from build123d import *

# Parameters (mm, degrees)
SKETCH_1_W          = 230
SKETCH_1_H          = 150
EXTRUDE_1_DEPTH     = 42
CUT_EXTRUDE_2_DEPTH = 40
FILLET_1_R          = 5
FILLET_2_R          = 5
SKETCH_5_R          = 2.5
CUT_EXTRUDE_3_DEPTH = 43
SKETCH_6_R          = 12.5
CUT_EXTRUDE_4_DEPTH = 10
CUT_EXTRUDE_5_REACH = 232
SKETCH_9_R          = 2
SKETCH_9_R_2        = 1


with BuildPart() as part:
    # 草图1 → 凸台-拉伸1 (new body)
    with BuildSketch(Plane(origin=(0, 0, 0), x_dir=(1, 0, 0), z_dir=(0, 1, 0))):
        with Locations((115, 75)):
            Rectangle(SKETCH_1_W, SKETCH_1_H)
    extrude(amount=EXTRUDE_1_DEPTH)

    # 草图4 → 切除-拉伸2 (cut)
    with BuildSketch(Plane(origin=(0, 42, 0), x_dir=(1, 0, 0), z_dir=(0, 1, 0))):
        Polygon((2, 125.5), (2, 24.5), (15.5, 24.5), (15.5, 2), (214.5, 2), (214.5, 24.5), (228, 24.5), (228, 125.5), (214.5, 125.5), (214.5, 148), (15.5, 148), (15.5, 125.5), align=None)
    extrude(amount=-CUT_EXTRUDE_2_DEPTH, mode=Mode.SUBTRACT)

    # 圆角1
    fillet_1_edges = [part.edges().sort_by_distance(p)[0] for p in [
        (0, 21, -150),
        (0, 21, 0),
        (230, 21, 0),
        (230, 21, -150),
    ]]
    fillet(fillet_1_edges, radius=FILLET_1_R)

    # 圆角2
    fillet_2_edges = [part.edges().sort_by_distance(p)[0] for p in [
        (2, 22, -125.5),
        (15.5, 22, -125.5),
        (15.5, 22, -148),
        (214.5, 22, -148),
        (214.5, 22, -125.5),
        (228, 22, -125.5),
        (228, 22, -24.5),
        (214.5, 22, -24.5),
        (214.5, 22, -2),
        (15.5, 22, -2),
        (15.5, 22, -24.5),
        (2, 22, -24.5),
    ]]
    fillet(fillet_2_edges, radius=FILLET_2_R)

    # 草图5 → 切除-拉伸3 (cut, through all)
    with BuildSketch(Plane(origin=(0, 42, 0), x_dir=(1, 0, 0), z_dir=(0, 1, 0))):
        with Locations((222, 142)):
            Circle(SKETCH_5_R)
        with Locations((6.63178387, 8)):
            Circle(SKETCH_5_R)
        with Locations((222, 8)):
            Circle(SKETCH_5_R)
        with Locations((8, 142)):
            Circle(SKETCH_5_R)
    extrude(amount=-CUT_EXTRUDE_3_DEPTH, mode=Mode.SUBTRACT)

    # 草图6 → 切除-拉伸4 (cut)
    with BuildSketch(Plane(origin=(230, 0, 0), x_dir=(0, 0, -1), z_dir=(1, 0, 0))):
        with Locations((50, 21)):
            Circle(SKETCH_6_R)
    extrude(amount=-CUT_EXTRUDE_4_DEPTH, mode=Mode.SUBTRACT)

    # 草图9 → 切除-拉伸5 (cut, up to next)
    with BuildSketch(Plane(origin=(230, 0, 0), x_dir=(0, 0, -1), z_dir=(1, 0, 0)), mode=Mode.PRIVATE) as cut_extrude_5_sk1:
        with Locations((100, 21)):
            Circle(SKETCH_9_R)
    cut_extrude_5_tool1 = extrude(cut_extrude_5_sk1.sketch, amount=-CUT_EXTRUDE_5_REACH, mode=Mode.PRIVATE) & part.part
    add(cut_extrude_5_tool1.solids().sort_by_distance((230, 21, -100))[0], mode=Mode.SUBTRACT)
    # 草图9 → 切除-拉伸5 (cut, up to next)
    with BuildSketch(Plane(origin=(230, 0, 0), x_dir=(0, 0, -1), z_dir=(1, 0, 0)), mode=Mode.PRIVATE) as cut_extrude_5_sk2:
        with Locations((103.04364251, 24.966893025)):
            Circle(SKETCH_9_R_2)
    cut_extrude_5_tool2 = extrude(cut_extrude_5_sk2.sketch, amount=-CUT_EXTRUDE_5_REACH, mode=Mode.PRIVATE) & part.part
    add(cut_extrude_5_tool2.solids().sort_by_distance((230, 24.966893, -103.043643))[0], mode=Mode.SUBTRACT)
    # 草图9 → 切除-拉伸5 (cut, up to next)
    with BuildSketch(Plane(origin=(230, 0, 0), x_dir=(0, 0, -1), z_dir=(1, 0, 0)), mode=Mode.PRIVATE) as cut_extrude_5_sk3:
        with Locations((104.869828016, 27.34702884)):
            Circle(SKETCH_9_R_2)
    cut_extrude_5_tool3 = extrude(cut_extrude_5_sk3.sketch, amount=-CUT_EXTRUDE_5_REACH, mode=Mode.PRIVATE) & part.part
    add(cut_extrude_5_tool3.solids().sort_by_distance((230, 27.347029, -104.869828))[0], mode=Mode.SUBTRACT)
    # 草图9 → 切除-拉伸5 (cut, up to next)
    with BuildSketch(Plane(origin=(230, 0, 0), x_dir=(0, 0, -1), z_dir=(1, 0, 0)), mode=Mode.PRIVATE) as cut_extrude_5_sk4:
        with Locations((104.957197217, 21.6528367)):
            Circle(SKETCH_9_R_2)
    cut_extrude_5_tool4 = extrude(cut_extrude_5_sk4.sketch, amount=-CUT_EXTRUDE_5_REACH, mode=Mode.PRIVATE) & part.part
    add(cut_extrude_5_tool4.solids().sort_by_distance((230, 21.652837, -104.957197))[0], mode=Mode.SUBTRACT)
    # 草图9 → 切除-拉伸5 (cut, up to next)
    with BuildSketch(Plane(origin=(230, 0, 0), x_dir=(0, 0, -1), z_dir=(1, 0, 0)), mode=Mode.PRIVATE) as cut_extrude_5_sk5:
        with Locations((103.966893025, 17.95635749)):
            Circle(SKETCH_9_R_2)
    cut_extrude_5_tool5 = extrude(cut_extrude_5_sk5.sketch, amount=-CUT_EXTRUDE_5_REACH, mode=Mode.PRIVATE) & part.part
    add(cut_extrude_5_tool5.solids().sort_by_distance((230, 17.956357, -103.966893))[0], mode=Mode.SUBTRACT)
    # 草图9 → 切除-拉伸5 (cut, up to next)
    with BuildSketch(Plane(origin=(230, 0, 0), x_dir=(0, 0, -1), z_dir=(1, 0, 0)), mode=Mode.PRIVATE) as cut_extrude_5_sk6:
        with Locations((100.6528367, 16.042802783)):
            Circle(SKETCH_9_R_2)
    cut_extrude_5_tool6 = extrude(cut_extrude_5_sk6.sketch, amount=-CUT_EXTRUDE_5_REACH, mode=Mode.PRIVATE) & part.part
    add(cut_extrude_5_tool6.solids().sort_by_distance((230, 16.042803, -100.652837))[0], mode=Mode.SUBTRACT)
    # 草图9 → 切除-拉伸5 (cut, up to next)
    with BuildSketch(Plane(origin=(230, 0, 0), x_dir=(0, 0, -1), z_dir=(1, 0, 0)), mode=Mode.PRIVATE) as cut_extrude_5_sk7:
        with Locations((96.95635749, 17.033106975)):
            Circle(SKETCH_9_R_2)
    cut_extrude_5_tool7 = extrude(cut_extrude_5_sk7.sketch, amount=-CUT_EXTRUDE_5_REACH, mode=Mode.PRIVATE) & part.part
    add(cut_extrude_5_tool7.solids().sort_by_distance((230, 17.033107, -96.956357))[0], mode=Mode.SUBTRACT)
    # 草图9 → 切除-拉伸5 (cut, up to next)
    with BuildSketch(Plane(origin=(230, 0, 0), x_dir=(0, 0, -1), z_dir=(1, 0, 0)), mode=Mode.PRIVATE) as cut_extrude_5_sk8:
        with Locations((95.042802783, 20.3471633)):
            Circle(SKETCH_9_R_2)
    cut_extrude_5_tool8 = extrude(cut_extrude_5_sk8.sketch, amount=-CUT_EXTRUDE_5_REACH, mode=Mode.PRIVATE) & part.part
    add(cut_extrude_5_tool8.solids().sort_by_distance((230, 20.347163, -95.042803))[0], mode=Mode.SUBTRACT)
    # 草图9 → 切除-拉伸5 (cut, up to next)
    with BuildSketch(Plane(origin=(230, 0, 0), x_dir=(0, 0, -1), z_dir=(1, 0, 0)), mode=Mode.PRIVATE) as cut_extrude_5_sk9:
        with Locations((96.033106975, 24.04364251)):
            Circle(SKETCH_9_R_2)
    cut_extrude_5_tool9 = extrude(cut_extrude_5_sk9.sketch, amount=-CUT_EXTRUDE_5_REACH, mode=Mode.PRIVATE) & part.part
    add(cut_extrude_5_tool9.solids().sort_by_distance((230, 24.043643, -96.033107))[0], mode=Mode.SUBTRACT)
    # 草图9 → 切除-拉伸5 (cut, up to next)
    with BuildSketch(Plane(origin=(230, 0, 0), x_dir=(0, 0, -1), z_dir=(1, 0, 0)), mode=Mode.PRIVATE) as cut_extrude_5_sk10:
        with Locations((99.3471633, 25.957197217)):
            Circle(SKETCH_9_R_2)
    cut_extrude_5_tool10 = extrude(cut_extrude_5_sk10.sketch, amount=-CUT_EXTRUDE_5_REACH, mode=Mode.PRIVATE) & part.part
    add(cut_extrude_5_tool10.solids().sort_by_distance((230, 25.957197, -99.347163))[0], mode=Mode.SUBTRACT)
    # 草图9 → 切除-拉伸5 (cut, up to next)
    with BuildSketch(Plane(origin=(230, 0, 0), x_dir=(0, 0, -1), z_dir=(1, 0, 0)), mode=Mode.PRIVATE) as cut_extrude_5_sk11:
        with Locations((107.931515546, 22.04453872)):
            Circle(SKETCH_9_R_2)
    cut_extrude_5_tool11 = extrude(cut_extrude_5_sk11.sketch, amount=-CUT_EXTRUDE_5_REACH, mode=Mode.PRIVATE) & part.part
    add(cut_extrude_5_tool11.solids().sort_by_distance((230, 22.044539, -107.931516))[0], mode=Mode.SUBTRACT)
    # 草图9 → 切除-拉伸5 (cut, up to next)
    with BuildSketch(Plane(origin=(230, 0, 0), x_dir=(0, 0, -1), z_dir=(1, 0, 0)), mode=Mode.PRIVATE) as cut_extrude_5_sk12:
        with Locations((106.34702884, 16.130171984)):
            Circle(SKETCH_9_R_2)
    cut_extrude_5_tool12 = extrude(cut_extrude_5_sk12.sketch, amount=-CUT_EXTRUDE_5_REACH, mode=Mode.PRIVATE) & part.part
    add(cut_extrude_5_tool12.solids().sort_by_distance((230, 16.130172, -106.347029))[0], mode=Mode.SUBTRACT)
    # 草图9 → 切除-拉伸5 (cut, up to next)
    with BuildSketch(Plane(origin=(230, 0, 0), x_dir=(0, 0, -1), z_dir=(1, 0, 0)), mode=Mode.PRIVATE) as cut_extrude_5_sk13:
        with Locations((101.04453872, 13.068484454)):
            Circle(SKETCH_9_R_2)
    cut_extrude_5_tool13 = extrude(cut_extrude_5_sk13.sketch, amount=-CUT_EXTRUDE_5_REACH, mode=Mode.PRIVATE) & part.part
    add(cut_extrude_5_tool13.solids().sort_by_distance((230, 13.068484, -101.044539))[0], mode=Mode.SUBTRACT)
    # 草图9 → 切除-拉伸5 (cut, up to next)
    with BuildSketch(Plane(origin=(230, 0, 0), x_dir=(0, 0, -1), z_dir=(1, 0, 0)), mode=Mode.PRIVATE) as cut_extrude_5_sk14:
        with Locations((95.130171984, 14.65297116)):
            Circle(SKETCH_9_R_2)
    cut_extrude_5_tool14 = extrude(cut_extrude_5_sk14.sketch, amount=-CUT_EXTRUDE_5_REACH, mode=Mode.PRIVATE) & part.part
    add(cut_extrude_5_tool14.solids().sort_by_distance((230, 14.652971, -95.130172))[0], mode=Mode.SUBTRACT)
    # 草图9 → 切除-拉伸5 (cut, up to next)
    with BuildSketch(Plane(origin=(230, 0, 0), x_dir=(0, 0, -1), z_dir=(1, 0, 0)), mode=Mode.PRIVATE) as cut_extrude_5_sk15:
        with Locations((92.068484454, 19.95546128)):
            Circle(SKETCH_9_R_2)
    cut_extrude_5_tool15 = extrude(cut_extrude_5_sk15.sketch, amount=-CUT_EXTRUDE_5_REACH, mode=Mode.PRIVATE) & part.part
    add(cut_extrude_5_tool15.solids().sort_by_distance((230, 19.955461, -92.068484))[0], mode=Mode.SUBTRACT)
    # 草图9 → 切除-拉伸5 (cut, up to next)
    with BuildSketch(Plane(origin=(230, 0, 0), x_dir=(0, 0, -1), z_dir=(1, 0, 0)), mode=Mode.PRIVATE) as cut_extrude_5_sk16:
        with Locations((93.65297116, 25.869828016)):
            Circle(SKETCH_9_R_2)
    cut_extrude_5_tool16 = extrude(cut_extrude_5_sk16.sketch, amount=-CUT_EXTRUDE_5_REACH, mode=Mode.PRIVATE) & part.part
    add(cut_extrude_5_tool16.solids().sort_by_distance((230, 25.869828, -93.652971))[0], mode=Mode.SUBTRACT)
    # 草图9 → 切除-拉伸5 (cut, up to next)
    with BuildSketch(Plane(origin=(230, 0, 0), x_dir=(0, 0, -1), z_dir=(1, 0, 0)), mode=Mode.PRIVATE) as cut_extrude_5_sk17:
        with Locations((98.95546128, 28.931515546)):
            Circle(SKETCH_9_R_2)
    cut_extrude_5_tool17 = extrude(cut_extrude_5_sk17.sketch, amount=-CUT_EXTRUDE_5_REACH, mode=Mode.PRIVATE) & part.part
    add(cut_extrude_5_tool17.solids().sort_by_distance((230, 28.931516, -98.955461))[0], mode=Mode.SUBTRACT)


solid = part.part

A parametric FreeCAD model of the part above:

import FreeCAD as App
import Part
import Sketcher


def edges_at(feature, points):
    """Names of the edges that pass closest to the given points."""
    edges = feature.Shape.Edges
    near = lambda p: min(range(len(edges)), key=lambda i: edges[i].distToShape(Part.Vertex(*p))[0])
    return sorted({f"Edge{near(p) + 1}" for p in points})

doc = App.newDocument("Part")
body = doc.addObject("PartDesign::Body", "Body")

# Sketch on XZ plane
sketch1 = body.newObject("Sketcher::SketchObject", "Sketch")
sketch1.AttachmentSupport = (doc.getObject("XZ_Plane"), [""])
sketch1.MapMode = "FlatFace"
sketch1.addGeometry(Part.LineSegment(App.Vector(0, -150, 0), App.Vector(0, 0, 0)), False)
sketch1.addGeometry(Part.LineSegment(App.Vector(0, 0, 0), App.Vector(230, 0, 0)), False)
sketch1.addGeometry(Part.LineSegment(App.Vector(230, 0, 0), App.Vector(230, -150, 0)), False)
sketch1.addGeometry(Part.LineSegment(App.Vector(230, -150, 0), App.Vector(0, -150, 0)), False)
sketch1.addConstraint(Sketcher.Constraint("Coincident", 0, 2, 1, 1))
sketch1.addConstraint(Sketcher.Constraint("Coincident", 1, 2, 2, 1))
sketch1.addConstraint(Sketcher.Constraint("Coincident", 2, 2, 3, 1))
sketch1.addConstraint(Sketcher.Constraint("Coincident", 3, 2, 0, 1))
sketch1.addConstraint(Sketcher.Constraint("Vertical", 0))
sketch1.addConstraint(Sketcher.Constraint("Horizontal", 1))
sketch1.addConstraint(Sketcher.Constraint("Vertical", 2))
sketch1.addConstraint(Sketcher.Constraint("Horizontal", 3))
sketch1.addConstraint(Sketcher.Constraint("Coincident", 0, 2, -1, 1))
sketch1.addConstraint(Sketcher.Constraint("DistanceX", 1, 1, 1, 2, 230.0))
sketch1.addConstraint(Sketcher.Constraint("DistanceY", 0, 1, 0, 2, 150.0))
pad1 = body.newObject("PartDesign::Pad", "Pad")
pad1.Profile = sketch1
pad1.Length = 42
pad1.Reversed = True

# Sketch on XZ plane
sketch2 = body.newObject("Sketcher::SketchObject", "Sketch001")
sketch2.AttachmentSupport = (doc.getObject("XZ_Plane"), [""])
sketch2.MapMode = "FlatFace"
sketch2.AttachmentOffset = App.Placement(App.Vector(0, 0, -42), App.Rotation())
sketch2.addGeometry(Part.LineSegment(App.Vector(2, -126, 0), App.Vector(2, -24, 0)), False)
sketch2.addGeometry(Part.LineSegment(App.Vector(2, -24, 0), App.Vector(16, -24, 0)), False)
sketch2.addGeometry(Part.LineSegment(App.Vector(16, -24, 0), App.Vector(16, -2, 0)), False)
sketch2.addGeometry(Part.LineSegment(App.Vector(16, -2, 0), App.Vector(214, -2, 0)), False)
sketch2.addGeometry(Part.LineSegment(App.Vector(214, -2, 0), App.Vector(214, -24, 0)), False)
sketch2.addGeometry(Part.LineSegment(App.Vector(214, -24, 0), App.Vector(228, -24, 0)), False)
sketch2.addGeometry(Part.LineSegment(App.Vector(228, -24, 0), App.Vector(228, -126, 0)), False)
sketch2.addGeometry(Part.LineSegment(App.Vector(228, -126, 0), App.Vector(214, -126, 0)), False)
sketch2.addGeometry(Part.LineSegment(App.Vector(214, -126, 0), App.Vector(214, -148, 0)), False)
sketch2.addGeometry(Part.LineSegment(App.Vector(214, -148, 0), App.Vector(16, -148, 0)), False)
sketch2.addGeometry(Part.LineSegment(App.Vector(16, -148, 0), App.Vector(16, -126, 0)), False)
sketch2.addGeometry(Part.LineSegment(App.Vector(16, -126, 0), App.Vector(2, -126, 0)), False)
sketch2.addConstraint(Sketcher.Constraint("Coincident", 0, 2, 1, 1))
sketch2.addConstraint(Sketcher.Constraint("Coincident", 1, 2, 2, 1))
sketch2.addConstraint(Sketcher.Constraint("Coincident", 2, 2, 3, 1))
sketch2.addConstraint(Sketcher.Constraint("Coincident", 3, 2, 4, 1))
sketch2.addConstraint(Sketcher.Constraint("Coincident", 4, 2, 5, 1))
sketch2.addConstraint(Sketcher.Constraint("Coincident", 5, 2, 6, 1))
sketch2.addConstraint(Sketcher.Constraint("Coincident", 6, 2, 7, 1))
sketch2.addConstraint(Sketcher.Constraint("Coincident", 7, 2, 8, 1))
sketch2.addConstraint(Sketcher.Constraint("Coincident", 8, 2, 9, 1))
sketch2.addConstraint(Sketcher.Constraint("Coincident", 9, 2, 10, 1))
sketch2.addConstraint(Sketcher.Constraint("Coincident", 10, 2, 11, 1))
sketch2.addConstraint(Sketcher.Constraint("Coincident", 11, 2, 0, 1))
sketch2.addConstraint(Sketcher.Constraint("Vertical", 0))
sketch2.addConstraint(Sketcher.Constraint("Horizontal", 1))
sketch2.addConstraint(Sketcher.Constraint("Vertical", 2))
sketch2.addConstraint(Sketcher.Constraint("Horizontal", 3))
sketch2.addConstraint(Sketcher.Constraint("Vertical", 4))
sketch2.addConstraint(Sketcher.Constraint("Horizontal", 5))
sketch2.addConstraint(Sketcher.Constraint("Vertical", 6))
sketch2.addConstraint(Sketcher.Constraint("Horizontal", 7))
sketch2.addConstraint(Sketcher.Constraint("Vertical", 8))
sketch2.addConstraint(Sketcher.Constraint("Horizontal", 9))
sketch2.addConstraint(Sketcher.Constraint("Vertical", 10))
sketch2.addConstraint(Sketcher.Constraint("Horizontal", 11))
sketch2.addConstraint(Sketcher.Constraint("Horizontal", 1, 2, 4, 2))
sketch2.addConstraint(Sketcher.Constraint("Horizontal", 7, 2, 10, 2))
sketch2.addConstraint(Sketcher.Constraint("Vertical", 4, 2, 7, 2))
sketch2.addConstraint(Sketcher.Constraint("Vertical", 2, 2, 9, 2))
sketch2.addConstraint(Sketcher.Constraint("Equal", 1, 5))
sketch2.addConstraint(Sketcher.Constraint("Equal", 4, 8))
sketch2.addConstraint(Sketcher.Constraint("DistanceX", 3, 1, 3, 2, 199.0))
sketch2.addConstraint(Sketcher.Constraint("DistanceY", 0, 1, 0, 2, 101.0))
sketch2.addConstraint(Sketcher.Constraint("DistanceX", 1, 1, 1, 2, 13.5))
sketch2.addConstraint(Sketcher.Constraint("DistanceY", 2, 1, 2, 2, 22.5))
sketch2.addConstraint(Sketcher.Constraint("DistanceX", -1, 1, 0, 2, 2.0))
sketch2.addConstraint(Sketcher.Constraint("DistanceY", 2, 2, -1, 1, 2.0))
pocket1 = body.newObject("PartDesign::Pocket", "Pocket")
pocket1.Profile = sketch2
pocket1.Length = 40
pocket1.Reversed = True
doc.recompute()

fillet = body.newObject("PartDesign::Fillet", "Fillet")
fillet.Base = (pocket1, edges_at(pocket1, [
    (0, 21, -150),
    (0, 21, 0),
    (230, 21, 0),
    (230, 21, -150),
]))
fillet.Radius = 5
doc.recompute()

fillet2 = body.newObject("PartDesign::Fillet", "Fillet001")
fillet2.Base = (fillet, edges_at(fillet, [
    (2, 22, -125.5),
    (15.5, 22, -125.5),
    (15.5, 22, -148),
    (214.5, 22, -148),
    (214.5, 22, -125.5),
    (228, 22, -125.5),
    (228, 22, -24.5),
    (214.5, 22, -24.5),
    (214.5, 22, -2),
    (15.5, 22, -2),
    (15.5, 22, -24.5),
    (2, 22, -24.5),
]))
fillet2.Radius = 5

# Sketch on XZ plane
sketch3 = body.newObject("Sketcher::SketchObject", "Sketch002")
sketch3.AttachmentSupport = (doc.getObject("XZ_Plane"), [""])
sketch3.MapMode = "FlatFace"
sketch3.AttachmentOffset = App.Placement(App.Vector(0, 0, -42), App.Rotation())
sketch3.addGeometry(Part.Circle(App.Vector(222, -142, 0), App.Vector(0, 0, 1), 2.5), False)
sketch3.addGeometry(Part.Circle(App.Vector(6.6, -8, 0), App.Vector(0, 0, 1), 2.5), False)
sketch3.addGeometry(Part.Circle(App.Vector(222, -8, 0), App.Vector(0, 0, 1), 2.5), False)
sketch3.addGeometry(Part.Circle(App.Vector(8, -142, 0), App.Vector(0, 0, 1), 2.5), False)
sketch3.addConstraint(Sketcher.Constraint("Equal", 0, 1))
sketch3.addConstraint(Sketcher.Constraint("Equal", 1, 2))
sketch3.addConstraint(Sketcher.Constraint("Equal", 2, 3))
sketch3.addConstraint(Sketcher.Constraint("Horizontal", 1, 3, 2, 3))
sketch3.addConstraint(Sketcher.Constraint("Horizontal", 0, 3, 3, 3))
sketch3.addConstraint(Sketcher.Constraint("Vertical", 0, 3, 2, 3))
sketch3.addConstraint(Sketcher.Constraint("Diameter", 0, 5.0))
sketch3.addConstraint(Sketcher.Constraint("DistanceX", -1, 1, 0, 3, 222.0))
sketch3.addConstraint(Sketcher.Constraint("DistanceY", 0, 3, -1, 1, 142.0))
sketch3.addConstraint(Sketcher.Constraint("DistanceY", 1, 3, -1, 1, 8.0))
sketch3.addConstraint(Sketcher.Constraint("DistanceX", -1, 1, 3, 3, 8.0))
sketch3.addConstraint(Sketcher.Constraint("DistanceX", -1, 1, 1, 3, 6.631784))
pocket2 = body.newObject("PartDesign::Pocket", "Pocket001")
pocket2.Profile = sketch3
pocket2.Type = "ThroughAll"
pocket2.Reversed = True

# Sketch on YZ plane
sketch4 = body.newObject("Sketcher::SketchObject", "Sketch003")
sketch4.AttachmentSupport = (doc.getObject("YZ_Plane"), [""])
sketch4.MapMode = "FlatFace"
sketch4.AttachmentOffset = App.Placement(App.Vector(0, 0, 230), App.Rotation())
sketch4.addGeometry(Part.Circle(App.Vector(21, -50, 0), App.Vector(0, 0, 1), 12), False)
sketch4.addConstraint(Sketcher.Constraint("Diameter", 0, 25.0))
sketch4.addConstraint(Sketcher.Constraint("DistanceX", -1, 1, 0, 3, 21.0))
sketch4.addConstraint(Sketcher.Constraint("DistanceY", 0, 3, -1, 1, 50.0))
pocket3 = body.newObject("PartDesign::Pocket", "Pocket002")
pocket3.Profile = sketch4
pocket3.Length = 10

# Sketch on YZ plane
sketch5 = body.newObject("Sketcher::SketchObject", "Sketch004")
sketch5.AttachmentSupport = (doc.getObject("YZ_Plane"), [""])
sketch5.MapMode = "FlatFace"
sketch5.AttachmentOffset = App.Placement(App.Vector(0, 0, 230), App.Rotation())
sketch5.addGeometry(Part.Circle(App.Vector(21, -100, 0), App.Vector(0, 0, 1), 2), False)
sketch5.addConstraint(Sketcher.Constraint("Diameter", 0, 4.0))
sketch5.addConstraint(Sketcher.Constraint("DistanceX", -1, 1, 0, 3, 21.0))
sketch5.addConstraint(Sketcher.Constraint("DistanceY", 0, 3, -1, 1, 100.0))
pocket4 = body.newObject("PartDesign::Pocket", "Pocket003")
pocket4.Profile = sketch5
pocket4.Type = "UpToFirst"

# Sketch on YZ plane
sketch6 = body.newObject("Sketcher::SketchObject", "Sketch005")
sketch6.AttachmentSupport = (doc.getObject("YZ_Plane"), [""])
sketch6.MapMode = "FlatFace"
sketch6.AttachmentOffset = App.Placement(App.Vector(0, 0, 230), App.Rotation())
sketch6.addGeometry(Part.Circle(App.Vector(25, -103, 0), App.Vector(0, 0, 1), 1), False)
sketch6.addConstraint(Sketcher.Constraint("Diameter", 0, 2.0))
sketch6.addConstraint(Sketcher.Constraint("DistanceX", -1, 1, 0, 3, 24.966893))
sketch6.addConstraint(Sketcher.Constraint("DistanceY", 0, 3, -1, 1, 103.043643))
pocket5 = body.newObject("PartDesign::Pocket", "Pocket004")
pocket5.Profile = sketch6
pocket5.Type = "UpToFirst"

# Sketch on YZ plane
sketch7 = body.newObject("Sketcher::SketchObject", "Sketch006")
sketch7.AttachmentSupport = (doc.getObject("YZ_Plane"), [""])
sketch7.MapMode = "FlatFace"
sketch7.AttachmentOffset = App.Placement(App.Vector(0, 0, 230), App.Rotation())
sketch7.addGeometry(Part.Circle(App.Vector(27.3, -104.9, 0), App.Vector(0, 0, 1), 1), False)
sketch7.addConstraint(Sketcher.Constraint("Diameter", 0, 2.0))
sketch7.addConstraint(Sketcher.Constraint("DistanceX", -1, 1, 0, 3, 27.347029))
sketch7.addConstraint(Sketcher.Constraint("DistanceY", 0, 3, -1, 1, 104.869828))
pocket6 = body.newObject("PartDesign::Pocket", "Pocket005")
pocket6.Profile = sketch7
pocket6.Type = "UpToFirst"

# Sketch on YZ plane
sketch8 = body.newObject("Sketcher::SketchObject", "Sketch007")
sketch8.AttachmentSupport = (doc.getObject("YZ_Plane"), [""])
sketch8.MapMode = "FlatFace"
sketch8.AttachmentOffset = App.Placement(App.Vector(0, 0, 230), App.Rotation())
sketch8.addGeometry(Part.Circle(App.Vector(21.7, -105, 0), App.Vector(0, 0, 1), 1), False)
sketch8.addConstraint(Sketcher.Constraint("Diameter", 0, 2.0))
sketch8.addConstraint(Sketcher.Constraint("DistanceX", -1, 1, 0, 3, 21.652837))
sketch8.addConstraint(Sketcher.Constraint("DistanceY", 0, 3, -1, 1, 104.957197))
pocket7 = body.newObject("PartDesign::Pocket", "Pocket006")
pocket7.Profile = sketch8
pocket7.Type = "UpToFirst"

# Sketch on YZ plane
sketch9 = body.newObject("Sketcher::SketchObject", "Sketch008")
sketch9.AttachmentSupport = (doc.getObject("YZ_Plane"), [""])
sketch9.MapMode = "FlatFace"
sketch9.AttachmentOffset = App.Placement(App.Vector(0, 0, 230), App.Rotation())
sketch9.addGeometry(Part.Circle(App.Vector(18, -104, 0), App.Vector(0, 0, 1), 1), False)
sketch9.addConstraint(Sketcher.Constraint("Diameter", 0, 2.0))
sketch9.addConstraint(Sketcher.Constraint("DistanceX", -1, 1, 0, 3, 17.956357))
sketch9.addConstraint(Sketcher.Constraint("DistanceY", 0, 3, -1, 1, 103.966893))
pocket8 = body.newObject("PartDesign::Pocket", "Pocket007")
pocket8.Profile = sketch9
pocket8.Type = "UpToFirst"

# Sketch on YZ plane
sketch10 = body.newObject("Sketcher::SketchObject", "Sketch009")
sketch10.AttachmentSupport = (doc.getObject("YZ_Plane"), [""])
sketch10.MapMode = "FlatFace"
sketch10.AttachmentOffset = App.Placement(App.Vector(0, 0, 230), App.Rotation())
sketch10.addGeometry(Part.Circle(App.Vector(16, -100.7, 0), App.Vector(0, 0, 1), 1), False)
sketch10.addConstraint(Sketcher.Constraint("Diameter", 0, 2.0))
sketch10.addConstraint(Sketcher.Constraint("DistanceX", -1, 1, 0, 3, 16.042803))
sketch10.addConstraint(Sketcher.Constraint("DistanceY", 0, 3, -1, 1, 100.652837))
pocket9 = body.newObject("PartDesign::Pocket", "Pocket008")
pocket9.Profile = sketch10
pocket9.Type = "UpToFirst"

# Sketch on YZ plane
sketch11 = body.newObject("Sketcher::SketchObject", "Sketch010")
sketch11.AttachmentSupport = (doc.getObject("YZ_Plane"), [""])
sketch11.MapMode = "FlatFace"
sketch11.AttachmentOffset = App.Placement(App.Vector(0, 0, 230), App.Rotation())
sketch11.addGeometry(Part.Circle(App.Vector(17, -97, 0), App.Vector(0, 0, 1), 1), False)
sketch11.addConstraint(Sketcher.Constraint("Diameter", 0, 2.0))
sketch11.addConstraint(Sketcher.Constraint("DistanceX", -1, 1, 0, 3, 17.033107))
sketch11.addConstraint(Sketcher.Constraint("DistanceY", 0, 3, -1, 1, 96.956357))
pocket10 = body.newObject("PartDesign::Pocket", "Pocket009")
pocket10.Profile = sketch11
pocket10.Type = "UpToFirst"

# Sketch on YZ plane
sketch12 = body.newObject("Sketcher::SketchObject", "Sketch011")
sketch12.AttachmentSupport = (doc.getObject("YZ_Plane"), [""])
sketch12.MapMode = "FlatFace"
sketch12.AttachmentOffset = App.Placement(App.Vector(0, 0, 230), App.Rotation())
sketch12.addGeometry(Part.Circle(App.Vector(20.3, -95, 0), App.Vector(0, 0, 1), 1), False)
sketch12.addConstraint(Sketcher.Constraint("Diameter", 0, 2.0))
sketch12.addConstraint(Sketcher.Constraint("DistanceX", -1, 1, 0, 3, 20.347163))
sketch12.addConstraint(Sketcher.Constraint("DistanceY", 0, 3, -1, 1, 95.042803))
pocket11 = body.newObject("PartDesign::Pocket", "Pocket010")
pocket11.Profile = sketch12
pocket11.Type = "UpToFirst"

# Sketch on YZ plane
sketch13 = body.newObject("Sketcher::SketchObject", "Sketch012")
sketch13.AttachmentSupport = (doc.getObject("YZ_Plane"), [""])
sketch13.MapMode = "FlatFace"
sketch13.AttachmentOffset = App.Placement(App.Vector(0, 0, 230), App.Rotation())
sketch13.addGeometry(Part.Circle(App.Vector(24, -96, 0), App.Vector(0, 0, 1), 1), False)
sketch13.addConstraint(Sketcher.Constraint("Diameter", 0, 2.0))
sketch13.addConstraint(Sketcher.Constraint("DistanceX", -1, 1, 0, 3, 24.043643))
sketch13.addConstraint(Sketcher.Constraint("DistanceY", 0, 3, -1, 1, 96.033107))
pocket12 = body.newObject("PartDesign::Pocket", "Pocket011")
pocket12.Profile = sketch13
pocket12.Type = "UpToFirst"

# Sketch on YZ plane
sketch14 = body.newObject("Sketcher::SketchObject", "Sketch013")
sketch14.AttachmentSupport = (doc.getObject("YZ_Plane"), [""])
sketch14.MapMode = "FlatFace"
sketch14.AttachmentOffset = App.Placement(App.Vector(0, 0, 230), App.Rotation())
sketch14.addGeometry(Part.Circle(App.Vector(26, -99.3, 0), App.Vector(0, 0, 1), 1), False)
sketch14.addConstraint(Sketcher.Constraint("Diameter", 0, 2.0))
sketch14.addConstraint(Sketcher.Constraint("DistanceX", -1, 1, 0, 3, 25.957197))
sketch14.addConstraint(Sketcher.Constraint("DistanceY", 0, 3, -1, 1, 99.347163))
pocket13 = body.newObject("PartDesign::Pocket", "Pocket012")
pocket13.Profile = sketch14
pocket13.Type = "UpToFirst"

# Sketch on YZ plane
sketch15 = body.newObject("Sketcher::SketchObject", "Sketch014")
sketch15.AttachmentSupport = (doc.getObject("YZ_Plane"), [""])
sketch15.MapMode = "FlatFace"
sketch15.AttachmentOffset = App.Placement(App.Vector(0, 0, 230), App.Rotation())
sketch15.addGeometry(Part.Circle(App.Vector(22, -107.9, 0), App.Vector(0, 0, 1), 1), False)
sketch15.addConstraint(Sketcher.Constraint("Diameter", 0, 2.0))
sketch15.addConstraint(Sketcher.Constraint("DistanceX", -1, 1, 0, 3, 22.044539))
sketch15.addConstraint(Sketcher.Constraint("DistanceY", 0, 3, -1, 1, 107.931516))
pocket14 = body.newObject("PartDesign::Pocket", "Pocket013")
pocket14.Profile = sketch15
pocket14.Type = "UpToFirst"

# Sketch on YZ plane
sketch16 = body.newObject("Sketcher::SketchObject", "Sketch015")
sketch16.AttachmentSupport = (doc.getObject("YZ_Plane"), [""])
sketch16.MapMode = "FlatFace"
sketch16.AttachmentOffset = App.Placement(App.Vector(0, 0, 230), App.Rotation())
sketch16.addGeometry(Part.Circle(App.Vector(16.1, -106.3, 0), App.Vector(0, 0, 1), 1), False)
sketch16.addConstraint(Sketcher.Constraint("Diameter", 0, 2.0))
sketch16.addConstraint(Sketcher.Constraint("DistanceX", -1, 1, 0, 3, 16.130172))
sketch16.addConstraint(Sketcher.Constraint("DistanceY", 0, 3, -1, 1, 106.347029))
pocket15 = body.newObject("PartDesign::Pocket", "Pocket014")
pocket15.Profile = sketch16
pocket15.Type = "UpToFirst"

# Sketch on YZ plane
sketch17 = body.newObject("Sketcher::SketchObject", "Sketch016")
sketch17.AttachmentSupport = (doc.getObject("YZ_Plane"), [""])
sketch17.MapMode = "FlatFace"
sketch17.AttachmentOffset = App.Placement(App.Vector(0, 0, 230), App.Rotation())
sketch17.addGeometry(Part.Circle(App.Vector(13.1, -101, 0), App.Vector(0, 0, 1), 1), False)
sketch17.addConstraint(Sketcher.Constraint("Diameter", 0, 2.0))
sketch17.addConstraint(Sketcher.Constraint("DistanceY", 0, 3, -1, 1, 101.044539))
sketch17.addConstraint(Sketcher.Constraint("DistanceX", -1, 1, 0, 3, 13.068484))
pocket16 = body.newObject("PartDesign::Pocket", "Pocket015")
pocket16.Profile = sketch17
pocket16.Type = "UpToFirst"

# Sketch on YZ plane
sketch18 = body.newObject("Sketcher::SketchObject", "Sketch017")
sketch18.AttachmentSupport = (doc.getObject("YZ_Plane"), [""])
sketch18.MapMode = "FlatFace"
sketch18.AttachmentOffset = App.Placement(App.Vector(0, 0, 230), App.Rotation())
sketch18.addGeometry(Part.Circle(App.Vector(14.7, -95.1, 0), App.Vector(0, 0, 1), 1), False)
sketch18.addConstraint(Sketcher.Constraint("Diameter", 0, 2.0))
sketch18.addConstraint(Sketcher.Constraint("DistanceX", -1, 1, 0, 3, 14.652971))
sketch18.addConstraint(Sketcher.Constraint("DistanceY", 0, 3, -1, 1, 95.130172))
pocket17 = body.newObject("PartDesign::Pocket", "Pocket016")
pocket17.Profile = sketch18
pocket17.Type = "UpToFirst"

# Sketch on YZ plane
sketch19 = body.newObject("Sketcher::SketchObject", "Sketch018")
sketch19.AttachmentSupport = (doc.getObject("YZ_Plane"), [""])
sketch19.MapMode = "FlatFace"
sketch19.AttachmentOffset = App.Placement(App.Vector(0, 0, 230), App.Rotation())
sketch19.addGeometry(Part.Circle(App.Vector(20, -92.1, 0), App.Vector(0, 0, 1), 1), False)
sketch19.addConstraint(Sketcher.Constraint("Diameter", 0, 2.0))
sketch19.addConstraint(Sketcher.Constraint("DistanceX", -1, 1, 0, 3, 19.955461))
sketch19.addConstraint(Sketcher.Constraint("DistanceY", 0, 3, -1, 1, 92.068484))
pocket18 = body.newObject("PartDesign::Pocket", "Pocket017")
pocket18.Profile = sketch19
pocket18.Type = "UpToFirst"

# Sketch on YZ plane
sketch20 = body.newObject("Sketcher::SketchObject", "Sketch019")
sketch20.AttachmentSupport = (doc.getObject("YZ_Plane"), [""])
sketch20.MapMode = "FlatFace"
sketch20.AttachmentOffset = App.Placement(App.Vector(0, 0, 230), App.Rotation())
sketch20.addGeometry(Part.Circle(App.Vector(25.9, -93.7, 0), App.Vector(0, 0, 1), 1), False)
sketch20.addConstraint(Sketcher.Constraint("Diameter", 0, 2.0))
sketch20.addConstraint(Sketcher.Constraint("DistanceX", -1, 1, 0, 3, 25.869828))
sketch20.addConstraint(Sketcher.Constraint("DistanceY", 0, 3, -1, 1, 93.652971))
pocket19 = body.newObject("PartDesign::Pocket", "Pocket018")
pocket19.Profile = sketch20
pocket19.Type = "UpToFirst"

# Sketch on YZ plane
sketch21 = body.newObject("Sketcher::SketchObject", "Sketch020")
sketch21.AttachmentSupport = (doc.getObject("YZ_Plane"), [""])
sketch21.MapMode = "FlatFace"
sketch21.AttachmentOffset = App.Placement(App.Vector(0, 0, 230), App.Rotation())
sketch21.addGeometry(Part.Circle(App.Vector(28.9, -99, 0), App.Vector(0, 0, 1), 1), False)
sketch21.addConstraint(Sketcher.Constraint("Diameter", 0, 2.0))
sketch21.addConstraint(Sketcher.Constraint("DistanceY", 0, 3, -1, 1, 98.955461))
sketch21.addConstraint(Sketcher.Constraint("DistanceX", -1, 1, 0, 3, 28.931516))
pocket20 = body.newObject("PartDesign::Pocket", "Pocket019")
pocket20.Profile = sketch21
pocket20.Type = "UpToFirst"

doc.recompute()
